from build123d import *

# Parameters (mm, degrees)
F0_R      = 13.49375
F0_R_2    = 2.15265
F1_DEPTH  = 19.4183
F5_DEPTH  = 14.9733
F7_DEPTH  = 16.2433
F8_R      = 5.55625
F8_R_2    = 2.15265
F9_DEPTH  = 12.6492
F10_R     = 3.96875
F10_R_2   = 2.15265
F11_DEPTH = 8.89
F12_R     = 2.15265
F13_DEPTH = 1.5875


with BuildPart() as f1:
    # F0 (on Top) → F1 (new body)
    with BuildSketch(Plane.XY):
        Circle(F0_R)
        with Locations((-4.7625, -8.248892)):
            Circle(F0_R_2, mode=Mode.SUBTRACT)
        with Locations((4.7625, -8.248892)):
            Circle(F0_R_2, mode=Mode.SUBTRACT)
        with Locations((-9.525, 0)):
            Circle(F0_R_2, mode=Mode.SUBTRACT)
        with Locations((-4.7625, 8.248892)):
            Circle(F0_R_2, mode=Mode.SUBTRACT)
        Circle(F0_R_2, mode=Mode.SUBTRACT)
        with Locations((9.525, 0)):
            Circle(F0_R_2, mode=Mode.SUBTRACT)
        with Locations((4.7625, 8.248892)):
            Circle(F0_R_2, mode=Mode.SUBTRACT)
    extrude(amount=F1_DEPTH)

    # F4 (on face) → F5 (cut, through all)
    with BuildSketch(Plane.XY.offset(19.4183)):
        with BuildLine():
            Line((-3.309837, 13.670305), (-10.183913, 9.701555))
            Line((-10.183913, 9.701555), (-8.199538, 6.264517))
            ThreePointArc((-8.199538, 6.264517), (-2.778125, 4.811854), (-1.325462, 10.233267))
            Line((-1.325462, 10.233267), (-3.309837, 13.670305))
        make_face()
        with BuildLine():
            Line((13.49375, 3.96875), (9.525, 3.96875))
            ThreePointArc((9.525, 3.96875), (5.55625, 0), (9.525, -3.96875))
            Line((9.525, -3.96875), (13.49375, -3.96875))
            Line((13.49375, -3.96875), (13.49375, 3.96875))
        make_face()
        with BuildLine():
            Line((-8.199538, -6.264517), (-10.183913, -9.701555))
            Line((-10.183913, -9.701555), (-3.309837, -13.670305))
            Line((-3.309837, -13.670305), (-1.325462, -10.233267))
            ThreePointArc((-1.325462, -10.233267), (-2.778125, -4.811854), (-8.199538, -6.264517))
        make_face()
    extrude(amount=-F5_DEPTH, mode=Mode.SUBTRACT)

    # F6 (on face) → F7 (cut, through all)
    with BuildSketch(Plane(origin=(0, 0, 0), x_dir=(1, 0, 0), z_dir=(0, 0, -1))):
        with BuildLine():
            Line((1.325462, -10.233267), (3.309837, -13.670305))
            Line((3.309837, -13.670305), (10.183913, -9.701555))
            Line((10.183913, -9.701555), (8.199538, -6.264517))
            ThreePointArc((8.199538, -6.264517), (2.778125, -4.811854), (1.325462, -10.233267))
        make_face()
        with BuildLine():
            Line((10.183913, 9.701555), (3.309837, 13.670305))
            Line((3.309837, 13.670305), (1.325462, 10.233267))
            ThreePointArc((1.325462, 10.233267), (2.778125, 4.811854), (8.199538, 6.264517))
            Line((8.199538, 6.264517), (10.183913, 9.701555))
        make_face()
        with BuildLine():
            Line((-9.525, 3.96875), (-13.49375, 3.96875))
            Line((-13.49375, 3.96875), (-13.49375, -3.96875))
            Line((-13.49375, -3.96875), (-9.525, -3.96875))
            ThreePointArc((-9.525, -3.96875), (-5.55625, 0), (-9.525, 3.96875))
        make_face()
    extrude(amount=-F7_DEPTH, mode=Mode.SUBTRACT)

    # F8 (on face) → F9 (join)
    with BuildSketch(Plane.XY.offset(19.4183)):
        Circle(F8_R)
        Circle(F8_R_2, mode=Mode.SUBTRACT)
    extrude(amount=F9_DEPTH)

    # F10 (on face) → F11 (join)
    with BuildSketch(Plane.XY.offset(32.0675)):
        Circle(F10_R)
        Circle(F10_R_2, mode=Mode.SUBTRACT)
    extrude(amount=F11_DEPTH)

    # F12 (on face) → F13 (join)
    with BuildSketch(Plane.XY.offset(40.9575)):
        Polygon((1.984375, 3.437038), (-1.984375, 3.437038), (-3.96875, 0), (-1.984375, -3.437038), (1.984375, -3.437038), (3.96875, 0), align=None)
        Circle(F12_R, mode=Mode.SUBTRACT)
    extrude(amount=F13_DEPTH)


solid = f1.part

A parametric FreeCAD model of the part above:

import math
import FreeCAD as App
import Part
import Sketcher

V = App.Vector
Q = App.Units.Quantity

doc = App.newDocument("Part")
body = doc.addObject("PartDesign::Body", "Body")

sketch1 = body.newObject("Sketcher::SketchObject", "Sketch")
sketch1.AttachmentSupport = (doc.getObject("XY_Plane"), [""])
sketch1.MapMode = "FlatFace"
sketch1.addGeometry([
    Part.Circle(V(0, 0, 0), V(0, 0, 1), 13.49375),
    Part.Circle(V(-4.7625, -8.248892, 0), V(0, 0, 1), 2.15265),
    Part.Circle(V(4.7625, -8.248892, 0), V(0, 0, 1), 2.15265),
    Part.Circle(V(-9.525, 0, 0), V(0, 0, 1), 2.15265),
    Part.Circle(V(-4.7625, 8.248892, 0), V(0, 0, 1), 2.15265),
    Part.Circle(V(0, 0, 0), V(0, 0, 1), 2.15265),
    Part.Circle(V(9.525, 0, 0), V(0, 0, 1), 2.15265),
    Part.Circle(V(4.7625, 8.248892, 0), V(0, 0, 1), 2.15265),
], False)
sketch1.addConstraint([
    Sketcher.Constraint("Coincident", 0, 3, -1, 1),
    Sketcher.Constraint("Coincident", 5, 3, -1, 1),
    Sketcher.Constraint("Equal", 1, 2),
    Sketcher.Constraint("Equal", 2, 3),
    Sketcher.Constraint("Equal", 3, 4),
    Sketcher.Constraint("Equal", 4, 5),
    Sketcher.Constraint("Equal", 5, 6),
    Sketcher.Constraint("Equal", 6, 7),
    Sketcher.Constraint("Symmetric", 2, 3, 4, 3, -1, 1),
    Sketcher.Constraint("Symmetric", 3, 3, 6, 3, -1, 1),
    Sketcher.Constraint("Symmetric", 1, 3, 7, 3, -1, 1),
    Sketcher.Constraint("Symmetric", 1, 3, 2, 3, -2),
    Sketcher.Constraint("PointOnObject", 3, 3, -1),
    Sketcher.Constraint("Diameter", 0, Q("1.0625 in")),
    Sketcher.Constraint("Diameter", 1, Q("0.1695 in")),
    Sketcher.Constraint("DistanceX", 1, 3, -1, 1, Q("0.1875 in")),
    Sketcher.Constraint("DistanceX", 3, 3, -1, 1, Q("0.375 in")),
    Sketcher.Constraint("DistanceY", 1, 3, -1, 1, 8.248892),
])
pad1 = body.newObject("PartDesign::Pad", "Pad")
pad1.Profile = sketch1
pad1.Length = Q("0.7645 in")

sketch2 = body.newObject("Sketcher::SketchObject", "Sketch001")
sketch2.AttachmentSupport = (doc.getObject("XY_Plane"), [""])
sketch2.MapMode = "FlatFace"
sketch2.AttachmentOffset = App.Placement(V(0, 0, 0.7645 * 25.4), App.Rotation())
sketch2.addGeometry([
    Part.LineSegment(V(-3.309837, 13.670305, 0), V(-10.183913, 9.701555, 0)),
    Part.LineSegment(V(-10.183913, 9.701555, 0), V(-8.199538, 6.264517, 0)),
    Part.ArcOfCircle(Part.Circle(V(-4.7625, 8.248892, 0), V(0, 0, 1), 3.96875), math.radians(-149.999998), math.radians(30.000002)),
    Part.LineSegment(V(-1.325462, 10.233267, 0), V(-3.309837, 13.670305, 0)),
    Part.LineSegment(V(13.49375, 3.96875, 0), V(9.525, 3.96875, 0)),
    Part.ArcOfCircle(Part.Circle(V(9.525, 0, 0), V(0, 0, 1), 3.96875), math.radians(90), math.radians(270)),
    Part.LineSegment(V(9.525, -3.96875, 0), V(13.49375, -3.96875, 0)),
    Part.LineSegment(V(13.49375, -3.96875, 0), V(13.49375, 3.96875, 0)),
    Part.LineSegment(V(-8.199538, -6.264517, 0), V(-10.183913, -9.701555, 0)),
    Part.LineSegment(V(-10.183913, -9.701555, 0), V(-3.309837, -13.670305, 0)),
    Part.LineSegment(V(-3.309837, -13.670305, 0), V(-1.325462, -10.233267, 0)),
    Part.ArcOfCircle(Part.Circle(V(-4.7625, -8.248892, 0), V(0, 0, 1), 3.96875), math.radians(-30.000002), math.radians(149.999998)),
], False)
sketch2.addConstraint([
    Sketcher.Constraint("Coincident", 0, 2, 1, 1),
    Sketcher.Constraint("Tangent", 1, 2, 2, 1),
    Sketcher.Constraint("Tangent", 2, 2, 3, 1),
    Sketcher.Constraint("Coincident", 3, 2, 0, 1),
    Sketcher.Constraint("Tangent", 4, 2, 5, 1),
    Sketcher.Constraint("Tangent", 5, 2, 6, 1),
    Sketcher.Constraint("Coincident", 6, 2, 7, 1),
    Sketcher.Constraint("Coincident", 7, 2, 4, 1),
    Sketcher.Constraint("Coincident", 8, 2, 9, 1),
    Sketcher.Constraint("Coincident", 9, 2, 10, 1),
    Sketcher.Constraint("Tangent", 10, 2, 11, 1),
    Sketcher.Constraint("Tangent", 11, 2, 8, 1),
    Sketcher.Constraint("Horizontal", 4),
    Sketcher.Constraint("Horizontal", 6),
    Sketcher.Constraint("Vertical", 7),
    Sketcher.Constraint("Equal", 2, 5),
    Sketcher.Constraint("Equal", 5, 11),
    Sketcher.Constraint("Symmetric", 2, 3, 11, 3, -1),
    Sketcher.Constraint("Symmetric", 0, 2, 8, 2, -1),
    Sketcher.Constraint("Symmetric", 3, 2, 9, 2, -1),
    Sketcher.Constraint("PointOnObject", 5, 3, -1),
    Sketcher.Constraint("Perpendicular", 0, 1),
    Sketcher.Constraint("Parallel", 1, 3),
    Sketcher.Constraint("Angle", 0, Q("-149.999998 deg")),
    Sketcher.Constraint("Radius", 2, Q("0.15625 in")),
    Sketcher.Constraint("DistanceX", 4, 2, 4, 1, Q("0.15625 in")),
    Sketcher.Constraint("Distance", 1, Q("0.15625 in")),
    Sketcher.Constraint("DistanceX", 2, 3, -1, 1, Q("0.1875 in")),
    Sketcher.Constraint("DistanceX", -1, 1, 5, 3, Q("0.375 in")),
    Sketcher.Constraint("DistanceY", 11, 3, 1, 2, 14.513409),
])
pocket1 = body.newObject("PartDesign::Pocket", "Pocket")
pocket1.Profile = sketch2
pocket1.Length = Q("0.5895 in")

sketch3 = body.newObject("Sketcher::SketchObject", "Sketch002")
sketch3.AttachmentSupport = (doc.getObject("XY_Plane"), [""])
sketch3.MapMode = "FlatFace"
sketch3.addGeometry([
    Part.LineSegment(V(1.325462, 10.233267, 0), V(3.309837, 13.670305, 0)),
    Part.LineSegment(V(3.309837, 13.670305, 0), V(10.183913, 9.701555, 0)),
    Part.LineSegment(V(10.183913, 9.701555, 0), V(8.199538, 6.264517, 0)),
    Part.ArcOfCircle(Part.Circle(V(4.7625, 8.248892, 0), V(0, 0, 1), 3.96875), math.radians(149.999998), math.radians(329.999998)),
    Part.LineSegment(V(10.183913, -9.701555, 0), V(3.309837, -13.670305, 0)),
    Part.LineSegment(V(3.309837, -13.670305, 0), V(1.325462, -10.233267, 0)),
    Part.ArcOfCircle(Part.Circle(V(4.7625, -8.248892, 0), V(0, 0, 1), 3.96875), math.radians(30.000002), math.radians(210.000002)),
    Part.LineSegment(V(8.199538, -6.264517, 0), V(10.183913, -9.701555, 0)),
    Part.LineSegment(V(-9.525, -3.96875, 0), V(-13.49375, -3.96875, 0)),
    Part.LineSegment(V(-13.49375, -3.96875, 0), V(-13.49375, 3.96875, 0)),
    Part.LineSegment(V(-13.49375, 3.96875, 0), V(-9.525, 3.96875, 0)),
    Part.ArcOfCircle(Part.Circle(V(-9.525, 0, 0), V(0, 0, 1), 3.96875), math.radians(-90), math.radians(90)),
], False)
sketch3.addConstraint([
    Sketcher.Constraint("Coincident", 0, 2, 1, 1),
    Sketcher.Constraint("Coincident", 1, 2, 2, 1),
    Sketcher.Constraint("Tangent", 2, 2, 3, 2),
    Sketcher.Constraint("Tangent", 3, 1, 0, 1),
    Sketcher.Constraint("Coincident", 4, 2, 5, 1),
    Sketcher.Constraint("Tangent", 5, 2, 6, 2),
    Sketcher.Constraint("Tangent", 6, 1, 7, 1),
    Sketcher.Constraint("Coincident", 7, 2, 4, 1),
    Sketcher.Constraint("Coincident", 8, 2, 9, 1),
    Sketcher.Constraint("Coincident", 9, 2, 10, 1),
    Sketcher.Constraint("Tangent", 10, 2, 11, 2),
    Sketcher.Constraint("Tangent", 11, 1, 8, 1),
    Sketcher.Constraint("Horizontal", 8),
    Sketcher.Constraint("Vertical", 9),
    Sketcher.Constraint("Horizontal", 10),
    Sketcher.Constraint("Equal", 3, 6),
    Sketcher.Constraint("Equal", 6, 11),
    Sketcher.Constraint("Symmetric", 3, 3, 6, 3, -1),
    Sketcher.Constraint("Symmetric", 0, 2, 4, 2, -1),
    Sketcher.Constraint("Symmetric", 1, 2, 7, 2, -1),
    Sketcher.Constraint("PointOnObject", 11, 3, -1),
    Sketcher.Constraint("Perpendicular", 0, 1),
    Sketcher.Constraint("Perpendicular", 1, 2),
    Sketcher.Constraint("Angle", 0, Q("59.999998 deg")),
    Sketcher.Constraint("Radius", 3, Q("0.15625 in")),
    Sketcher.Constraint("DistanceX", 8, 2, 8, 1, Q("0.15625 in")),
    Sketcher.Constraint("Distance", 0, Q("0.15625 in")),
    Sketcher.Constraint("DistanceX", -1, 1, 3, 3, Q("0.1875 in")),
    Sketcher.Constraint("DistanceX", 11, 3, -1, 1, Q("0.375 in")),
    Sketcher.Constraint("DistanceY", 6, 3, 2, 2, 14.513409),
])
pocket2 = body.newObject("PartDesign::Pocket", "Pocket001")
pocket2.Profile = sketch3
pocket2.Length = Q("0.6395 in")
pocket2.Reversed = True

sketch4 = body.newObject("Sketcher::SketchObject", "Sketch003")
sketch4.AttachmentSupport = (doc.getObject("XY_Plane"), [""])
sketch4.MapMode = "FlatFace"
sketch4.AttachmentOffset = App.Placement(V(0, 0, 0.7645 * 25.4), App.Rotation())
sketch4.addGeometry([
    Part.Circle(V(0, 0, 0), V(0, 0, 1), 5.55625),
    Part.Circle(V(0, 0, 0), V(0, 0, 1), 2.15265),
], False)
sketch4.addConstraint([
    Sketcher.Constraint("Coincident", 0, 3, -1, 1),
    Sketcher.Constraint("Coincident", 1, 3, -1, 1),
    Sketcher.Constraint("Diameter", 0, Q("0.4375 in")),
    Sketcher.Constraint("Diameter", 1, Q("0.1695 in")),
])
pad2 = body.newObject("PartDesign::Pad", "Pad001")
pad2.Profile = sketch4
pad2.Length = Q("0.498 in")

sketch5 = body.newObject("Sketcher::SketchObject", "Sketch004")
sketch5.AttachmentSupport = (doc.getObject("XY_Plane"), [""])
sketch5.MapMode = "FlatFace"
sketch5.AttachmentOffset = App.Placement(V(0, 0, 1.2625 * 25.4), App.Rotation())
sketch5.addGeometry([
    Part.Circle(V(0, 0, 0), V(0, 0, 1), 3.96875),
    Part.Circle(V(0, 0, 0), V(0, 0, 1), 2.15265),
], False)
sketch5.addConstraint([
    Sketcher.Constraint("Coincident", 0, 3, -1, 1),
    Sketcher.Constraint("Coincident", 1, 3, -1, 1),
    Sketcher.Constraint("Diameter", 0, Q("0.3125 in")),
    Sketcher.Constraint("Diameter", 1, Q("0.1695 in")),
])
pad3 = body.newObject("PartDesign::Pad", "Pad002")
pad3.Profile = sketch5
pad3.Length = Q("0.35 in")

sketch6 = body.newObject("Sketcher::SketchObject", "Sketch005")
sketch6.AttachmentSupport = (doc.getObject("XY_Plane"), [""])
sketch6.MapMode = "FlatFace"
sketch6.AttachmentOffset = App.Placement(V(0, 0, 1.6125 * 25.4), App.Rotation())
sketch6.addGeometry([
    Part.LineSegment(V(1.984375, 3.437038, 0), V(-1.984375, 3.437038, 0)),
    Part.LineSegment(V(-1.984375, 3.437038, 0), V(-3.96875, 0, 0)),
    Part.LineSegment(V(-3.96875, 0, 0), V(-1.984375, -3.437038, 0)),
    Part.LineSegment(V(-1.984375, -3.437038, 0), V(1.984375, -3.437038, 0)),
    Part.LineSegment(V(1.984375, -3.437038, 0), V(3.96875, 0, 0)),
    Part.LineSegment(V(3.96875, 0, 0), V(1.984375, 3.437038, 0)),
    Part.Circle(V(0, 0, 0), V(0, 0, 1), 2.15265),
], False)
sketch6.addConstraint([
    Sketcher.Constraint("Coincident", 0, 2, 1, 1),
    Sketcher.Constraint("Coincident", 1, 2, 2, 1),
    Sketcher.Constraint("Coincident", 2, 2, 3, 1),
    Sketcher.Constraint("Coincident", 3, 2, 4, 1),
    Sketcher.Constraint("Coincident", 4, 2, 5, 1),
    Sketcher.Constraint("Coincident", 5, 2, 0, 1),
    Sketcher.Constraint("Horizontal", 0),
    Sketcher.Constraint("Horizontal", 3),
    Sketcher.Constraint("Coincident", 6, 3, -1, 1),
    Sketcher.Constraint("Symmetric", 0, 2, 3, 2, -1, 1),
    Sketcher.Constraint("Symmetric", 1, 2, 4, 2, -1, 1),
    Sketcher.Constraint("PointOnObject", 1, 2, -1),
    Sketcher.Constraint("Parallel", 2, 5),
    Sketcher.Constraint("Vertical", 0, 2, 2, 2),
    Sketcher.Constraint("Angle", 1, Q("-120.000002 deg")),
    Sketcher.Constraint("Diameter", 6, Q("0.1695 in")),
    Sketcher.Constraint("DistanceX", 0, 2, 0, 1, Q("0.15625 in")),
    Sketcher.Constraint("Distance", 1, Q("0.15625 in")),
])
pad4 = body.newObject("PartDesign::Pad", "Pad003")
pad4.Profile = sketch6
pad4.Length = Q("0.0625 in")

doc.recompute()
